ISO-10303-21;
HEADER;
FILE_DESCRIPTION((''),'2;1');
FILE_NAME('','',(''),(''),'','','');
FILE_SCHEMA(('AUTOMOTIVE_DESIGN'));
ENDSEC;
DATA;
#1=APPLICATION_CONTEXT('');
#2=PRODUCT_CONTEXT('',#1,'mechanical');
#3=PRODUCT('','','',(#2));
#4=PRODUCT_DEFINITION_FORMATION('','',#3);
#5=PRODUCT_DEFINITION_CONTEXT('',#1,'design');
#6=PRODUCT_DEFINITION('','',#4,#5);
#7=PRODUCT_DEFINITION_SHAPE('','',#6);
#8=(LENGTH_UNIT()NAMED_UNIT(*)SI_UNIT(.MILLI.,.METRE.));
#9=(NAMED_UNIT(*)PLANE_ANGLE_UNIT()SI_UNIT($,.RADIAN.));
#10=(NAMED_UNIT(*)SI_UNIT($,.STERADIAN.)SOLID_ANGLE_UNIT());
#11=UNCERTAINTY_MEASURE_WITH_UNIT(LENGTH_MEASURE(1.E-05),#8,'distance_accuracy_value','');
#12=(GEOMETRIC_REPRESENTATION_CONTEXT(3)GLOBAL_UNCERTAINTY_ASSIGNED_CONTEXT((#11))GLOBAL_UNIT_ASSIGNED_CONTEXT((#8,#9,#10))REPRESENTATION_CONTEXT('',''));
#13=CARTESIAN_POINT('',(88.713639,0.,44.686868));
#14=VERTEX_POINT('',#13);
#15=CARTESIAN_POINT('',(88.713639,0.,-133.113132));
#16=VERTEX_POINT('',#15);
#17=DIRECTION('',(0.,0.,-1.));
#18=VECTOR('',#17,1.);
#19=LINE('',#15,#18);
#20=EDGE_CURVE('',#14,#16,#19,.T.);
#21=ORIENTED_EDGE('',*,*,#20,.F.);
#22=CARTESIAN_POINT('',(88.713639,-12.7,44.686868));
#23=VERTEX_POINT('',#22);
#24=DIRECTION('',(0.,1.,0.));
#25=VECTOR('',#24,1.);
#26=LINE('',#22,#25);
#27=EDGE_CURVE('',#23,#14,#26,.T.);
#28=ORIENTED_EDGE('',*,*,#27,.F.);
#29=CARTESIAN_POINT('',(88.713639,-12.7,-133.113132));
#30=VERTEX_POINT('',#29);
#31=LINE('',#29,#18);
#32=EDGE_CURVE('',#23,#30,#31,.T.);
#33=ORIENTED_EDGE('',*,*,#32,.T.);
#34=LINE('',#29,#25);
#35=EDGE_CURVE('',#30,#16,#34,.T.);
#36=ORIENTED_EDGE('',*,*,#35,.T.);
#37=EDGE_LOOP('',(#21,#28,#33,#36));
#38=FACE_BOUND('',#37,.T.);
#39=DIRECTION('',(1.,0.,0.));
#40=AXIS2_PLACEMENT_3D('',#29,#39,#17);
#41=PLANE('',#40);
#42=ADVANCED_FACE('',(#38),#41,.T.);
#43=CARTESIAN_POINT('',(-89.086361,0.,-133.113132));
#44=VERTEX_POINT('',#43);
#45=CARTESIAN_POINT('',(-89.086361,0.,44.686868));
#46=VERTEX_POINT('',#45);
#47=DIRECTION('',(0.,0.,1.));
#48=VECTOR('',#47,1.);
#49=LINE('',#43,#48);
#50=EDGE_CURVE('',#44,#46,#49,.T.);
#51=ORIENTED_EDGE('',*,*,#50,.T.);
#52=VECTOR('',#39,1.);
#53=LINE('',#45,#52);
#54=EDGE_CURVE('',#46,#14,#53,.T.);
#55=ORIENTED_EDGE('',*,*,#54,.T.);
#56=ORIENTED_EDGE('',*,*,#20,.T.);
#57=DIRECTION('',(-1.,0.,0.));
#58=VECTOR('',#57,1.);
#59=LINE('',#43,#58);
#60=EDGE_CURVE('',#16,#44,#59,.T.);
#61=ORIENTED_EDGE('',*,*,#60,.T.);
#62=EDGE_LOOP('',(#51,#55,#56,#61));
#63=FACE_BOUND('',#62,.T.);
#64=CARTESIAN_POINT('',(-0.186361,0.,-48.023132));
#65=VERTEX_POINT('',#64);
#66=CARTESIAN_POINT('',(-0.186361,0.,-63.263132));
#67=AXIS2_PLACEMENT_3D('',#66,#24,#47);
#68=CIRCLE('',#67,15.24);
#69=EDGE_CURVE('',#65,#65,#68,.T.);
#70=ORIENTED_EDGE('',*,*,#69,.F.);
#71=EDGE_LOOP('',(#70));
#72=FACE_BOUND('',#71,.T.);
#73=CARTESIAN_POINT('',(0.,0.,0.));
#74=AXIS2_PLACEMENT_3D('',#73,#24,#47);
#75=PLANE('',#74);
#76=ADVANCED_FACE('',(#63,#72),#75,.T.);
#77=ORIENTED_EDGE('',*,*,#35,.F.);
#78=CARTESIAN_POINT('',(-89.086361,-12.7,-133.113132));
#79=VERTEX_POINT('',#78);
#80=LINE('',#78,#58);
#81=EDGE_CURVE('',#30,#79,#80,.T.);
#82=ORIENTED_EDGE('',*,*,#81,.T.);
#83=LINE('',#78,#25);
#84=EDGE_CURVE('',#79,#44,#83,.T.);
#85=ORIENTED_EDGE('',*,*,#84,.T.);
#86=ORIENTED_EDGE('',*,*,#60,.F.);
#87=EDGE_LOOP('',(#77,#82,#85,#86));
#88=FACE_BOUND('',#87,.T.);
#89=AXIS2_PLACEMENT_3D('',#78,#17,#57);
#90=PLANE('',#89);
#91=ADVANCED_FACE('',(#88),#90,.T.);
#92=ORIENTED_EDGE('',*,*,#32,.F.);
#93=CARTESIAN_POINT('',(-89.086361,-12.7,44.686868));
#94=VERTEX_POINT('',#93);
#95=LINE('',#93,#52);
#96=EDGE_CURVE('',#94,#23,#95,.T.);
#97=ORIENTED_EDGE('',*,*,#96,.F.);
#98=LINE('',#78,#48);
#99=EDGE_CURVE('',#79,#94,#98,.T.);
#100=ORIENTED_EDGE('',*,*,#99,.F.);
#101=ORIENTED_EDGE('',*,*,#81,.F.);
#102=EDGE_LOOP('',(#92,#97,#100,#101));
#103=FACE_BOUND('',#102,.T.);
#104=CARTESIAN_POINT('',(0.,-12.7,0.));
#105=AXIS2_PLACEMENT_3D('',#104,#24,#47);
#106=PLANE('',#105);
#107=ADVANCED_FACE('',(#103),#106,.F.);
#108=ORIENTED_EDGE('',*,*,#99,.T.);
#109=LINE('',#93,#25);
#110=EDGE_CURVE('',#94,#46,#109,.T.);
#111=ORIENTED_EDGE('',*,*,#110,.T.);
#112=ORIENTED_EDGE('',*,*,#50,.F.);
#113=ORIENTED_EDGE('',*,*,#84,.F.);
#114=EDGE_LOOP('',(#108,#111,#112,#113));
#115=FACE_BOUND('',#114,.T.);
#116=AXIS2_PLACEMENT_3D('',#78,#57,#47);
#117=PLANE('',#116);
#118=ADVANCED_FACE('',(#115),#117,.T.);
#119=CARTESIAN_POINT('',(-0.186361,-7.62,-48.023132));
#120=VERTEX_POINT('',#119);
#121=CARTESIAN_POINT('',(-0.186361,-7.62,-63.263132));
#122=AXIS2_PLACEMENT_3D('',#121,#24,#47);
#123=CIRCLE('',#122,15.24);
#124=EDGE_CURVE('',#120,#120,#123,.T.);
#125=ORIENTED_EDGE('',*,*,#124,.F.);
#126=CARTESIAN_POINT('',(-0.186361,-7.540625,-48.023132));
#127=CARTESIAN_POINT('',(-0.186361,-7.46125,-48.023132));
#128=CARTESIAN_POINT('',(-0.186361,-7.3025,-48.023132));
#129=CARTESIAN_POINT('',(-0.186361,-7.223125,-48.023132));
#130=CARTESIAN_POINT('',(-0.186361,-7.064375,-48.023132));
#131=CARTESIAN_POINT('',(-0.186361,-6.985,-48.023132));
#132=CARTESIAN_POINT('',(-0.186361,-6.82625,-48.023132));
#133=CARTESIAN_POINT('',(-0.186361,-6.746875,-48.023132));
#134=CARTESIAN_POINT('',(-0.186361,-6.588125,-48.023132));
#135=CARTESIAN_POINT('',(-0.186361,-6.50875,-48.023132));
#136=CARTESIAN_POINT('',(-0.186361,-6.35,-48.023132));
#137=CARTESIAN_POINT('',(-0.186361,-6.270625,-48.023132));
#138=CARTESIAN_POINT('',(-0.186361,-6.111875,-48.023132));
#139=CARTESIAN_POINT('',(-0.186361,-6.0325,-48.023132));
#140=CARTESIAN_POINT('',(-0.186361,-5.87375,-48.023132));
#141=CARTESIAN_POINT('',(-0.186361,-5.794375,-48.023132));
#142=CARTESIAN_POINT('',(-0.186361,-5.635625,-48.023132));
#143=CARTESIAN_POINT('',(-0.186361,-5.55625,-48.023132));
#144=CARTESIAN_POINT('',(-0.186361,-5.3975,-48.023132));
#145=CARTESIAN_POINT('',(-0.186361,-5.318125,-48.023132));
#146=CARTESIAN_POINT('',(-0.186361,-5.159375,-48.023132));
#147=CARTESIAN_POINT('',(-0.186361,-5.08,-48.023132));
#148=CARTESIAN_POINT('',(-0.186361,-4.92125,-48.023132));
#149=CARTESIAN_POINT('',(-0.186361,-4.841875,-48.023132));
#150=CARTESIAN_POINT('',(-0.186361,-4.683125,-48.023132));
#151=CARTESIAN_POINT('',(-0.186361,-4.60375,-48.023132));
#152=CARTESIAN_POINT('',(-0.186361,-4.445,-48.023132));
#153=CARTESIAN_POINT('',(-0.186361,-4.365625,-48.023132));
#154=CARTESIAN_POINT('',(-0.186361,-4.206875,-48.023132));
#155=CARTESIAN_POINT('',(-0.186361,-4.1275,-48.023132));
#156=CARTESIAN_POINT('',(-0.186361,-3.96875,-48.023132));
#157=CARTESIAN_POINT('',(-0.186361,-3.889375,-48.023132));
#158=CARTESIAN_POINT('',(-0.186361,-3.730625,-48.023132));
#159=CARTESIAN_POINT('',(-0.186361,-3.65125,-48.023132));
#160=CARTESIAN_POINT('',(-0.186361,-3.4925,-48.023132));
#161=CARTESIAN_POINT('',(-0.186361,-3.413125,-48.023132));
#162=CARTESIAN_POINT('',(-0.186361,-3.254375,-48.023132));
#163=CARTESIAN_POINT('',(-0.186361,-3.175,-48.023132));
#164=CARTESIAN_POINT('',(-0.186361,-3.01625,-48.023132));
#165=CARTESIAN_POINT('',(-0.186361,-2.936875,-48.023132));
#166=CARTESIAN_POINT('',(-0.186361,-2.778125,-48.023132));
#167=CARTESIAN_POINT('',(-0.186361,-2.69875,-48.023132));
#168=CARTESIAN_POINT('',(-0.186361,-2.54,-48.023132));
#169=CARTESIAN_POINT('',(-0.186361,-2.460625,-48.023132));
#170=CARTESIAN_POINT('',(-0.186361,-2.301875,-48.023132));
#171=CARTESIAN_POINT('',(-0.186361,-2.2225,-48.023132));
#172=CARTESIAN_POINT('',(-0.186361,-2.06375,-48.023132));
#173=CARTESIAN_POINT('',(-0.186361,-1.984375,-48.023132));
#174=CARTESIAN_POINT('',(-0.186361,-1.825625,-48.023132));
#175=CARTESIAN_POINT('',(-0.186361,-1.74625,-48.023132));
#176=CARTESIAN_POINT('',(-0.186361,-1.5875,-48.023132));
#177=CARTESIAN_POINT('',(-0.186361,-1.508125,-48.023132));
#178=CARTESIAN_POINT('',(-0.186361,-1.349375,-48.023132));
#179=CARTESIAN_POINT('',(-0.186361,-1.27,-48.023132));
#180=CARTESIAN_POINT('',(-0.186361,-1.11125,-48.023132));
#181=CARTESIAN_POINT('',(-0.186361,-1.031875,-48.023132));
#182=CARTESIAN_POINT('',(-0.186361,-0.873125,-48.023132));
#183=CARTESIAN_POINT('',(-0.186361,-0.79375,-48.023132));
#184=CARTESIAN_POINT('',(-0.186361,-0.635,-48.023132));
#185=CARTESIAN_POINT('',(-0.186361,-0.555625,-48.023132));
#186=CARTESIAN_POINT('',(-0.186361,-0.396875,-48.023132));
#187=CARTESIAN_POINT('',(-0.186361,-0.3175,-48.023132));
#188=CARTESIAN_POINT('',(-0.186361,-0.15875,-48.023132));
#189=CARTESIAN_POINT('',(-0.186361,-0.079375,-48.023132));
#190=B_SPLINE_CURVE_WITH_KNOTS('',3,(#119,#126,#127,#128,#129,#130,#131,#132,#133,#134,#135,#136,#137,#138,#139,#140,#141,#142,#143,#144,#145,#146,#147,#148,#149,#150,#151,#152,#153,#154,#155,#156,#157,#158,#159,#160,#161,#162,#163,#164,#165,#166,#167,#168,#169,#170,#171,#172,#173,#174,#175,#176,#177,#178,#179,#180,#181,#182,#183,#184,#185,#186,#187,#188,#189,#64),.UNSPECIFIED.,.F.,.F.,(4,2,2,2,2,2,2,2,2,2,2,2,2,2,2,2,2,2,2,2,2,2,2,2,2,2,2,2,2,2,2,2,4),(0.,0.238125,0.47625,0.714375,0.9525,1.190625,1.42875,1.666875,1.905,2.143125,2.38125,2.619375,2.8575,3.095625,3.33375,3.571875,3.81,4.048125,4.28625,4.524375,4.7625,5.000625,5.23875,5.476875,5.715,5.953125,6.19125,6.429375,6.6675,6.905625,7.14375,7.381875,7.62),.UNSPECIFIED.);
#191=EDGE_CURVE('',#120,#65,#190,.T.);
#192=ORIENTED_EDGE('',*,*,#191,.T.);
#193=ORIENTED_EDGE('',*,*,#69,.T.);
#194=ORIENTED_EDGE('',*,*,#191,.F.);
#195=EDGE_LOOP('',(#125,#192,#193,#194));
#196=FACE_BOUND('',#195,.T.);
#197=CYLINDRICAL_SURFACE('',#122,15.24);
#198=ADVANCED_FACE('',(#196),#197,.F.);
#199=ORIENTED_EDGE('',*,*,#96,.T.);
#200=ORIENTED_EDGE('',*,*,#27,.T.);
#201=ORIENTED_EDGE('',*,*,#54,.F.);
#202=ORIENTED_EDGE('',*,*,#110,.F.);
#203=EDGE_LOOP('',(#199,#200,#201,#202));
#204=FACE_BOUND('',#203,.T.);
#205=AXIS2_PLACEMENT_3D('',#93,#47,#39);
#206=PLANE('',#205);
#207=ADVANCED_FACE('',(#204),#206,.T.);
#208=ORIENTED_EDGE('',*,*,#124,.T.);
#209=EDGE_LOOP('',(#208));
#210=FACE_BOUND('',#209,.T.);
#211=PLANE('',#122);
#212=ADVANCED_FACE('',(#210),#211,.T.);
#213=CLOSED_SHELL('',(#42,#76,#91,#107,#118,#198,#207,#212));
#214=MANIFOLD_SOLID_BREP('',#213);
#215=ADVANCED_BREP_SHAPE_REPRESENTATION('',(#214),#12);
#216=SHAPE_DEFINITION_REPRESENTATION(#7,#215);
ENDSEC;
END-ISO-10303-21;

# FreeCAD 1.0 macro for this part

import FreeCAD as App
import Part
import Sketcher
from FreeCAD import Vector
Q = App.Units.Quantity

doc = App.newDocument("Part")
body = doc.addObject("PartDesign::Body", "Body")

sketch1 = doc.addObject("Sketcher::SketchObject", "Sketch")
body.addObject(sketch1)
sketch1.AttachmentSupport = (doc.XZ_Plane, [""])
sketch1.MapMode = "FlatFace"
sketch1.addGeometry([
    Part.LineSegment(Vector(-89.086361, -133.113132, 0), Vector(-89.086361, 44.686868, 0)),
    Part.LineSegment(Vector(-89.086361, 44.686868, 0), Vector(88.713639, 44.686868, 0)),
    Part.LineSegment(Vector(88.713639, 44.686868, 0), Vector(88.713639, -133.113132, 0)),
    Part.LineSegment(Vector(88.713639, -133.113132, 0), Vector(-89.086361, -133.113132, 0)),
], False)
sketch1.addConstraint([
    Sketcher.Constraint("Coincident", 0, 2, 1, 1),
    Sketcher.Constraint("Coincident", 1, 2, 2, 1),
    Sketcher.Constraint("Coincident", 2, 2, 3, 1),
    Sketcher.Constraint("Coincident", 3, 2, 0, 1),
    Sketcher.Constraint("Vertical", 0),
    Sketcher.Constraint("Horizontal", 1),
    Sketcher.Constraint("Vertical", 2),
    Sketcher.Constraint("Horizontal", 3),
    Sketcher.Constraint("Equal", 3, 0),
    Sketcher.Constraint("DistanceX", 1, 1, 1, 2, Q("7 in")),
    Sketcher.Constraint("DistanceX", 0, 2, -1, 1, Q("89.086361 mm")),
    Sketcher.Constraint("DistanceY", -1, 1, 0, 2, Q("44.686868 mm")),
])
pad1 = doc.addObject("PartDesign::Pad", "Pad")
body.addObject(pad1)
pad1.Profile = sketch1
pad1.Length = Q("0.5 in")

sketch2 = doc.addObject("Sketcher::SketchObject", "Sketch001")
body.addObject(sketch2)
sketch2.AttachmentSupport = (doc.XZ_Plane, [""])
sketch2.MapMode = "FlatFace"
sketch2.addGeometry(Part.Circle(Vector(-0.186361, -63.263132, 0), Vector(0, 0, 1), 15.24), False)
sketch2.addConstraint([
    Sketcher.Constraint("Diameter", 0, Q("1.2 in")),
    Sketcher.Constraint("DistanceX", 0, 3, -1, 1, Q("0.186361 mm")),
    Sketcher.Constraint("DistanceY", 0, 3, -1, 1, Q("63.263132 mm")),
])
pocket1 = doc.addObject("PartDesign::Pocket", "Pocket")
body.addObject(pocket1)
pocket1.Profile = sketch2
pocket1.Length = Q("0.3 in")
pocket1.Reversed = True

doc.recompute()
